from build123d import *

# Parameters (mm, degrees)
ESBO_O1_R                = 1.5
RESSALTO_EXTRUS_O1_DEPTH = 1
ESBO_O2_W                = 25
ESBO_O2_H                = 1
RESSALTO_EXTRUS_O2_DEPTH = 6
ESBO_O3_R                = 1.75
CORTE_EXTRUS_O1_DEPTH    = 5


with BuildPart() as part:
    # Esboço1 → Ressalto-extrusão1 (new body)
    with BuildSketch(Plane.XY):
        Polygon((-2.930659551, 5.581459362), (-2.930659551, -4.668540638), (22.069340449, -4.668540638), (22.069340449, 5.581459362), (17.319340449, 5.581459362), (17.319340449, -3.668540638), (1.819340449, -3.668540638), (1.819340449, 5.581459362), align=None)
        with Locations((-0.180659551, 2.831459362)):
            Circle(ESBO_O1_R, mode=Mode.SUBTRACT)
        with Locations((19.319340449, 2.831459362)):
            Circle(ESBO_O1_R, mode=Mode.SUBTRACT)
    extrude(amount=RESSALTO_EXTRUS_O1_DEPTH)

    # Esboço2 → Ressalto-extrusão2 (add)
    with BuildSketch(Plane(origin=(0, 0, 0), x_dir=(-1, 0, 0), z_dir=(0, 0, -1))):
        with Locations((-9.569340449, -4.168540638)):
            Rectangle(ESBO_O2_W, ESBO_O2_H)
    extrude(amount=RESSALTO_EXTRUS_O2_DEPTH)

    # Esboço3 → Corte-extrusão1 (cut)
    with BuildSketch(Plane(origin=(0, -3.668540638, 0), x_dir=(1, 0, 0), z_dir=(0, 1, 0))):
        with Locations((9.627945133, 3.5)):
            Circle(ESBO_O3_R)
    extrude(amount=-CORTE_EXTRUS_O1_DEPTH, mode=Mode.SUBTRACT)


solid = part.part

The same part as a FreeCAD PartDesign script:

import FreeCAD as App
import Part
import Sketcher
from FreeCAD import Vector

doc = App.newDocument("Part")
params = doc.addObject("Spreadsheet::Sheet", "Params")
for row, (alias, value) in enumerate([
    ("sketch1_diameter", "3 mm"),
    ("sketch1_width", "25 mm"),
    ("sketch1_width2", "15.5 mm"),
    ("sketch1_height", "10.25 mm"),
    ("pad1_length", "1 mm"),
    ("sketch2_width", "25 mm"),
    ("sketch2_height", "1 mm"),
    ("pad2_length", "6 mm"),
    ("sketch3_diameter", "3.5 mm"),
    ("pocket1_length", "5 mm"),
], start=1):
    params.set(f"A{row}", alias)
    params.set(f"B{row}", "=" + value)
    params.setAlias(f"B{row}", alias)

body = doc.addObject("PartDesign::Body", "Body")

sketch1 = body.newObject("Sketcher::SketchObject", "Sketch")
sketch1.AttachmentSupport = (doc.getObject("XY_Plane"), [""])
sketch1.MapMode = "FlatFace"
sketch1.addGeometry([
    Part.LineSegment(Vector(-2.93066, 5.581459, 0), Vector(-2.93066, -4.668541, 0)),
    Part.LineSegment(Vector(-2.93066, -4.668541, 0), Vector(22.06934, -4.668541, 0)),
    Part.LineSegment(Vector(22.06934, -4.668541, 0), Vector(22.06934, 5.581459, 0)),
    Part.LineSegment(Vector(22.06934, 5.581459, 0), Vector(17.31934, 5.581459, 0)),
    Part.LineSegment(Vector(17.31934, 5.581459, 0), Vector(17.31934, -3.668541, 0)),
    Part.LineSegment(Vector(17.31934, -3.668541, 0), Vector(1.81934, -3.668541, 0)),
    Part.LineSegment(Vector(1.81934, -3.668541, 0), Vector(1.81934, 5.581459, 0)),
    Part.LineSegment(Vector(1.81934, 5.581459, 0), Vector(-2.93066, 5.581459, 0)),
    Part.Circle(Vector(-0.18066, 2.831459, 0), Vector(0, 0, 1), 1.5),
    Part.Circle(Vector(19.31934, 2.831459, 0), Vector(0, 0, 1), 1.5),
], False)
sketch1.addConstraint([
    Sketcher.Constraint("Coincident", 0, 2, 1, 1),
    Sketcher.Constraint("Coincident", 1, 2, 2, 1),
    Sketcher.Constraint("Coincident", 2, 2, 3, 1),
    Sketcher.Constraint("Coincident", 3, 2, 4, 1),
    Sketcher.Constraint("Coincident", 4, 2, 5, 1),
    Sketcher.Constraint("Coincident", 5, 2, 6, 1),
    Sketcher.Constraint("Coincident", 6, 2, 7, 1),
    Sketcher.Constraint("Coincident", 7, 2, 0, 1),
    Sketcher.Constraint("Vertical", 0),
    Sketcher.Constraint("Horizontal", 1),
    Sketcher.Constraint("Vertical", 2),
    Sketcher.Constraint("Horizontal", 3),
    Sketcher.Constraint("Vertical", 4),
    Sketcher.Constraint("Horizontal", 5),
    Sketcher.Constraint("Vertical", 6),
    Sketcher.Constraint("Horizontal", 7),
    Sketcher.Constraint("Equal", 8, 9),
    Sketcher.Constraint("Horizontal", 8, 3, 9, 3),
    Sketcher.Constraint("Horizontal", 3, 2, 6, 2),
    Sketcher.Constraint("Equal", 3, 7),
    Sketcher.Constraint("Diameter", 8, 3.0),
    Sketcher.Constraint("DistanceX", 1, 1, 1, 2, 25.0),
    Sketcher.Constraint("DistanceX", 5, 2, 5, 1, 15.5),
    Sketcher.Constraint("DistanceX", 3, 2, 9, 3, 2.0),
    Sketcher.Constraint("DistanceY", 1, 2, 4, 2, 1.0),
    Sketcher.Constraint("DistanceX", 8, 3, 5, 2, 2.0),
    Sketcher.Constraint("DistanceY", 0, 2, 0, 1, 10.25),
    Sketcher.Constraint("DistanceY", 0, 2, 8, 3, 7.5),
    Sketcher.Constraint("DistanceX", 8, 3, -1, 1, 0.18066),
    Sketcher.Constraint("DistanceY", -1, 1, 8, 3, 2.831459),
])
sketch1.setExpression("Constraints[20]", "Params.sketch1_diameter")
sketch1.setExpression("Constraints[21]", "Params.sketch1_width")
sketch1.setExpression("Constraints[22]", "Params.sketch1_width2")
sketch1.setExpression("Constraints[26]", "Params.sketch1_height")
pad1 = body.newObject("PartDesign::Pad", "Pad")
pad1.Profile = sketch1
pad1.setExpression("Length", "Params.pad1_length")

sketch2 = body.newObject("Sketcher::SketchObject", "Sketch001")
sketch2.AttachmentSupport = (doc.getObject("XY_Plane"), [""])
sketch2.MapMode = "FlatFace"
sketch2.addGeometry([
    Part.LineSegment(Vector(22.06934, -3.668541, 0), Vector(22.06934, -4.668541, 0)),
    Part.LineSegment(Vector(22.06934, -4.668541, 0), Vector(-2.93066, -4.668541, 0)),
    Part.LineSegment(Vector(-2.93066, -4.668541, 0), Vector(-2.93066, -3.668541, 0)),
    Part.LineSegment(Vector(-2.93066, -3.668541, 0), Vector(22.06934, -3.668541, 0)),
], False)
sketch2.addConstraint([
    Sketcher.Constraint("Coincident", 0, 2, 1, 1),
    Sketcher.Constraint("Coincident", 1, 2, 2, 1),
    Sketcher.Constraint("Coincident", 2, 2, 3, 1),
    Sketcher.Constraint("Coincident", 3, 2, 0, 1),
    Sketcher.Constraint("Vertical", 0),
    Sketcher.Constraint("Horizontal", 1),
    Sketcher.Constraint("Vertical", 2),
    Sketcher.Constraint("Horizontal", 3),
    Sketcher.Constraint("DistanceX", 1, 2, 1, 1, 25.0),
    Sketcher.Constraint("DistanceY", 0, 2, 0, 1, 1.0),
    Sketcher.Constraint("DistanceX", -1, 1, 0, 2, 22.06934),
    Sketcher.Constraint("DistanceY", 0, 2, -1, 1, 4.668541),
])
sketch2.setExpression("Constraints[8]", "Params.sketch2_width")
sketch2.setExpression("Constraints[9]", "Params.sketch2_height")
pad2 = body.newObject("PartDesign::Pad", "Pad001")
pad2.Profile = sketch2
pad2.setExpression("Length", "Params.pad2_length")
pad2.Reversed = True

sketch3 = body.newObject("Sketcher::SketchObject", "Sketch002")
sketch3.AttachmentSupport = (doc.getObject("XZ_Plane"), [""])
sketch3.MapMode = "FlatFace"
sketch3.AttachmentOffset = App.Placement(Vector(0, 0, 3.668541), App.Rotation())
sketch3.addGeometry(Part.Circle(Vector(9.627945, -3.5, 0), Vector(0, 0, 1), 1.75), False)
sketch3.addConstraint([
    Sketcher.Constraint("Diameter", 0, 3.5),
    Sketcher.Constraint("DistanceY", 0, 3, -1, 1, 3.5),
    Sketcher.Constraint("DistanceX", -1, 1, 0, 3, 9.627945),
])
sketch3.setExpression("Constraints[0]", "Params.sketch3_diameter")
pocket1 = body.newObject("PartDesign::Pocket", "Pocket")
pocket1.Profile = sketch3
pocket1.setExpression("Length", "Params.pocket1_length")
pocket1.Reversed = True

doc.recompute()
